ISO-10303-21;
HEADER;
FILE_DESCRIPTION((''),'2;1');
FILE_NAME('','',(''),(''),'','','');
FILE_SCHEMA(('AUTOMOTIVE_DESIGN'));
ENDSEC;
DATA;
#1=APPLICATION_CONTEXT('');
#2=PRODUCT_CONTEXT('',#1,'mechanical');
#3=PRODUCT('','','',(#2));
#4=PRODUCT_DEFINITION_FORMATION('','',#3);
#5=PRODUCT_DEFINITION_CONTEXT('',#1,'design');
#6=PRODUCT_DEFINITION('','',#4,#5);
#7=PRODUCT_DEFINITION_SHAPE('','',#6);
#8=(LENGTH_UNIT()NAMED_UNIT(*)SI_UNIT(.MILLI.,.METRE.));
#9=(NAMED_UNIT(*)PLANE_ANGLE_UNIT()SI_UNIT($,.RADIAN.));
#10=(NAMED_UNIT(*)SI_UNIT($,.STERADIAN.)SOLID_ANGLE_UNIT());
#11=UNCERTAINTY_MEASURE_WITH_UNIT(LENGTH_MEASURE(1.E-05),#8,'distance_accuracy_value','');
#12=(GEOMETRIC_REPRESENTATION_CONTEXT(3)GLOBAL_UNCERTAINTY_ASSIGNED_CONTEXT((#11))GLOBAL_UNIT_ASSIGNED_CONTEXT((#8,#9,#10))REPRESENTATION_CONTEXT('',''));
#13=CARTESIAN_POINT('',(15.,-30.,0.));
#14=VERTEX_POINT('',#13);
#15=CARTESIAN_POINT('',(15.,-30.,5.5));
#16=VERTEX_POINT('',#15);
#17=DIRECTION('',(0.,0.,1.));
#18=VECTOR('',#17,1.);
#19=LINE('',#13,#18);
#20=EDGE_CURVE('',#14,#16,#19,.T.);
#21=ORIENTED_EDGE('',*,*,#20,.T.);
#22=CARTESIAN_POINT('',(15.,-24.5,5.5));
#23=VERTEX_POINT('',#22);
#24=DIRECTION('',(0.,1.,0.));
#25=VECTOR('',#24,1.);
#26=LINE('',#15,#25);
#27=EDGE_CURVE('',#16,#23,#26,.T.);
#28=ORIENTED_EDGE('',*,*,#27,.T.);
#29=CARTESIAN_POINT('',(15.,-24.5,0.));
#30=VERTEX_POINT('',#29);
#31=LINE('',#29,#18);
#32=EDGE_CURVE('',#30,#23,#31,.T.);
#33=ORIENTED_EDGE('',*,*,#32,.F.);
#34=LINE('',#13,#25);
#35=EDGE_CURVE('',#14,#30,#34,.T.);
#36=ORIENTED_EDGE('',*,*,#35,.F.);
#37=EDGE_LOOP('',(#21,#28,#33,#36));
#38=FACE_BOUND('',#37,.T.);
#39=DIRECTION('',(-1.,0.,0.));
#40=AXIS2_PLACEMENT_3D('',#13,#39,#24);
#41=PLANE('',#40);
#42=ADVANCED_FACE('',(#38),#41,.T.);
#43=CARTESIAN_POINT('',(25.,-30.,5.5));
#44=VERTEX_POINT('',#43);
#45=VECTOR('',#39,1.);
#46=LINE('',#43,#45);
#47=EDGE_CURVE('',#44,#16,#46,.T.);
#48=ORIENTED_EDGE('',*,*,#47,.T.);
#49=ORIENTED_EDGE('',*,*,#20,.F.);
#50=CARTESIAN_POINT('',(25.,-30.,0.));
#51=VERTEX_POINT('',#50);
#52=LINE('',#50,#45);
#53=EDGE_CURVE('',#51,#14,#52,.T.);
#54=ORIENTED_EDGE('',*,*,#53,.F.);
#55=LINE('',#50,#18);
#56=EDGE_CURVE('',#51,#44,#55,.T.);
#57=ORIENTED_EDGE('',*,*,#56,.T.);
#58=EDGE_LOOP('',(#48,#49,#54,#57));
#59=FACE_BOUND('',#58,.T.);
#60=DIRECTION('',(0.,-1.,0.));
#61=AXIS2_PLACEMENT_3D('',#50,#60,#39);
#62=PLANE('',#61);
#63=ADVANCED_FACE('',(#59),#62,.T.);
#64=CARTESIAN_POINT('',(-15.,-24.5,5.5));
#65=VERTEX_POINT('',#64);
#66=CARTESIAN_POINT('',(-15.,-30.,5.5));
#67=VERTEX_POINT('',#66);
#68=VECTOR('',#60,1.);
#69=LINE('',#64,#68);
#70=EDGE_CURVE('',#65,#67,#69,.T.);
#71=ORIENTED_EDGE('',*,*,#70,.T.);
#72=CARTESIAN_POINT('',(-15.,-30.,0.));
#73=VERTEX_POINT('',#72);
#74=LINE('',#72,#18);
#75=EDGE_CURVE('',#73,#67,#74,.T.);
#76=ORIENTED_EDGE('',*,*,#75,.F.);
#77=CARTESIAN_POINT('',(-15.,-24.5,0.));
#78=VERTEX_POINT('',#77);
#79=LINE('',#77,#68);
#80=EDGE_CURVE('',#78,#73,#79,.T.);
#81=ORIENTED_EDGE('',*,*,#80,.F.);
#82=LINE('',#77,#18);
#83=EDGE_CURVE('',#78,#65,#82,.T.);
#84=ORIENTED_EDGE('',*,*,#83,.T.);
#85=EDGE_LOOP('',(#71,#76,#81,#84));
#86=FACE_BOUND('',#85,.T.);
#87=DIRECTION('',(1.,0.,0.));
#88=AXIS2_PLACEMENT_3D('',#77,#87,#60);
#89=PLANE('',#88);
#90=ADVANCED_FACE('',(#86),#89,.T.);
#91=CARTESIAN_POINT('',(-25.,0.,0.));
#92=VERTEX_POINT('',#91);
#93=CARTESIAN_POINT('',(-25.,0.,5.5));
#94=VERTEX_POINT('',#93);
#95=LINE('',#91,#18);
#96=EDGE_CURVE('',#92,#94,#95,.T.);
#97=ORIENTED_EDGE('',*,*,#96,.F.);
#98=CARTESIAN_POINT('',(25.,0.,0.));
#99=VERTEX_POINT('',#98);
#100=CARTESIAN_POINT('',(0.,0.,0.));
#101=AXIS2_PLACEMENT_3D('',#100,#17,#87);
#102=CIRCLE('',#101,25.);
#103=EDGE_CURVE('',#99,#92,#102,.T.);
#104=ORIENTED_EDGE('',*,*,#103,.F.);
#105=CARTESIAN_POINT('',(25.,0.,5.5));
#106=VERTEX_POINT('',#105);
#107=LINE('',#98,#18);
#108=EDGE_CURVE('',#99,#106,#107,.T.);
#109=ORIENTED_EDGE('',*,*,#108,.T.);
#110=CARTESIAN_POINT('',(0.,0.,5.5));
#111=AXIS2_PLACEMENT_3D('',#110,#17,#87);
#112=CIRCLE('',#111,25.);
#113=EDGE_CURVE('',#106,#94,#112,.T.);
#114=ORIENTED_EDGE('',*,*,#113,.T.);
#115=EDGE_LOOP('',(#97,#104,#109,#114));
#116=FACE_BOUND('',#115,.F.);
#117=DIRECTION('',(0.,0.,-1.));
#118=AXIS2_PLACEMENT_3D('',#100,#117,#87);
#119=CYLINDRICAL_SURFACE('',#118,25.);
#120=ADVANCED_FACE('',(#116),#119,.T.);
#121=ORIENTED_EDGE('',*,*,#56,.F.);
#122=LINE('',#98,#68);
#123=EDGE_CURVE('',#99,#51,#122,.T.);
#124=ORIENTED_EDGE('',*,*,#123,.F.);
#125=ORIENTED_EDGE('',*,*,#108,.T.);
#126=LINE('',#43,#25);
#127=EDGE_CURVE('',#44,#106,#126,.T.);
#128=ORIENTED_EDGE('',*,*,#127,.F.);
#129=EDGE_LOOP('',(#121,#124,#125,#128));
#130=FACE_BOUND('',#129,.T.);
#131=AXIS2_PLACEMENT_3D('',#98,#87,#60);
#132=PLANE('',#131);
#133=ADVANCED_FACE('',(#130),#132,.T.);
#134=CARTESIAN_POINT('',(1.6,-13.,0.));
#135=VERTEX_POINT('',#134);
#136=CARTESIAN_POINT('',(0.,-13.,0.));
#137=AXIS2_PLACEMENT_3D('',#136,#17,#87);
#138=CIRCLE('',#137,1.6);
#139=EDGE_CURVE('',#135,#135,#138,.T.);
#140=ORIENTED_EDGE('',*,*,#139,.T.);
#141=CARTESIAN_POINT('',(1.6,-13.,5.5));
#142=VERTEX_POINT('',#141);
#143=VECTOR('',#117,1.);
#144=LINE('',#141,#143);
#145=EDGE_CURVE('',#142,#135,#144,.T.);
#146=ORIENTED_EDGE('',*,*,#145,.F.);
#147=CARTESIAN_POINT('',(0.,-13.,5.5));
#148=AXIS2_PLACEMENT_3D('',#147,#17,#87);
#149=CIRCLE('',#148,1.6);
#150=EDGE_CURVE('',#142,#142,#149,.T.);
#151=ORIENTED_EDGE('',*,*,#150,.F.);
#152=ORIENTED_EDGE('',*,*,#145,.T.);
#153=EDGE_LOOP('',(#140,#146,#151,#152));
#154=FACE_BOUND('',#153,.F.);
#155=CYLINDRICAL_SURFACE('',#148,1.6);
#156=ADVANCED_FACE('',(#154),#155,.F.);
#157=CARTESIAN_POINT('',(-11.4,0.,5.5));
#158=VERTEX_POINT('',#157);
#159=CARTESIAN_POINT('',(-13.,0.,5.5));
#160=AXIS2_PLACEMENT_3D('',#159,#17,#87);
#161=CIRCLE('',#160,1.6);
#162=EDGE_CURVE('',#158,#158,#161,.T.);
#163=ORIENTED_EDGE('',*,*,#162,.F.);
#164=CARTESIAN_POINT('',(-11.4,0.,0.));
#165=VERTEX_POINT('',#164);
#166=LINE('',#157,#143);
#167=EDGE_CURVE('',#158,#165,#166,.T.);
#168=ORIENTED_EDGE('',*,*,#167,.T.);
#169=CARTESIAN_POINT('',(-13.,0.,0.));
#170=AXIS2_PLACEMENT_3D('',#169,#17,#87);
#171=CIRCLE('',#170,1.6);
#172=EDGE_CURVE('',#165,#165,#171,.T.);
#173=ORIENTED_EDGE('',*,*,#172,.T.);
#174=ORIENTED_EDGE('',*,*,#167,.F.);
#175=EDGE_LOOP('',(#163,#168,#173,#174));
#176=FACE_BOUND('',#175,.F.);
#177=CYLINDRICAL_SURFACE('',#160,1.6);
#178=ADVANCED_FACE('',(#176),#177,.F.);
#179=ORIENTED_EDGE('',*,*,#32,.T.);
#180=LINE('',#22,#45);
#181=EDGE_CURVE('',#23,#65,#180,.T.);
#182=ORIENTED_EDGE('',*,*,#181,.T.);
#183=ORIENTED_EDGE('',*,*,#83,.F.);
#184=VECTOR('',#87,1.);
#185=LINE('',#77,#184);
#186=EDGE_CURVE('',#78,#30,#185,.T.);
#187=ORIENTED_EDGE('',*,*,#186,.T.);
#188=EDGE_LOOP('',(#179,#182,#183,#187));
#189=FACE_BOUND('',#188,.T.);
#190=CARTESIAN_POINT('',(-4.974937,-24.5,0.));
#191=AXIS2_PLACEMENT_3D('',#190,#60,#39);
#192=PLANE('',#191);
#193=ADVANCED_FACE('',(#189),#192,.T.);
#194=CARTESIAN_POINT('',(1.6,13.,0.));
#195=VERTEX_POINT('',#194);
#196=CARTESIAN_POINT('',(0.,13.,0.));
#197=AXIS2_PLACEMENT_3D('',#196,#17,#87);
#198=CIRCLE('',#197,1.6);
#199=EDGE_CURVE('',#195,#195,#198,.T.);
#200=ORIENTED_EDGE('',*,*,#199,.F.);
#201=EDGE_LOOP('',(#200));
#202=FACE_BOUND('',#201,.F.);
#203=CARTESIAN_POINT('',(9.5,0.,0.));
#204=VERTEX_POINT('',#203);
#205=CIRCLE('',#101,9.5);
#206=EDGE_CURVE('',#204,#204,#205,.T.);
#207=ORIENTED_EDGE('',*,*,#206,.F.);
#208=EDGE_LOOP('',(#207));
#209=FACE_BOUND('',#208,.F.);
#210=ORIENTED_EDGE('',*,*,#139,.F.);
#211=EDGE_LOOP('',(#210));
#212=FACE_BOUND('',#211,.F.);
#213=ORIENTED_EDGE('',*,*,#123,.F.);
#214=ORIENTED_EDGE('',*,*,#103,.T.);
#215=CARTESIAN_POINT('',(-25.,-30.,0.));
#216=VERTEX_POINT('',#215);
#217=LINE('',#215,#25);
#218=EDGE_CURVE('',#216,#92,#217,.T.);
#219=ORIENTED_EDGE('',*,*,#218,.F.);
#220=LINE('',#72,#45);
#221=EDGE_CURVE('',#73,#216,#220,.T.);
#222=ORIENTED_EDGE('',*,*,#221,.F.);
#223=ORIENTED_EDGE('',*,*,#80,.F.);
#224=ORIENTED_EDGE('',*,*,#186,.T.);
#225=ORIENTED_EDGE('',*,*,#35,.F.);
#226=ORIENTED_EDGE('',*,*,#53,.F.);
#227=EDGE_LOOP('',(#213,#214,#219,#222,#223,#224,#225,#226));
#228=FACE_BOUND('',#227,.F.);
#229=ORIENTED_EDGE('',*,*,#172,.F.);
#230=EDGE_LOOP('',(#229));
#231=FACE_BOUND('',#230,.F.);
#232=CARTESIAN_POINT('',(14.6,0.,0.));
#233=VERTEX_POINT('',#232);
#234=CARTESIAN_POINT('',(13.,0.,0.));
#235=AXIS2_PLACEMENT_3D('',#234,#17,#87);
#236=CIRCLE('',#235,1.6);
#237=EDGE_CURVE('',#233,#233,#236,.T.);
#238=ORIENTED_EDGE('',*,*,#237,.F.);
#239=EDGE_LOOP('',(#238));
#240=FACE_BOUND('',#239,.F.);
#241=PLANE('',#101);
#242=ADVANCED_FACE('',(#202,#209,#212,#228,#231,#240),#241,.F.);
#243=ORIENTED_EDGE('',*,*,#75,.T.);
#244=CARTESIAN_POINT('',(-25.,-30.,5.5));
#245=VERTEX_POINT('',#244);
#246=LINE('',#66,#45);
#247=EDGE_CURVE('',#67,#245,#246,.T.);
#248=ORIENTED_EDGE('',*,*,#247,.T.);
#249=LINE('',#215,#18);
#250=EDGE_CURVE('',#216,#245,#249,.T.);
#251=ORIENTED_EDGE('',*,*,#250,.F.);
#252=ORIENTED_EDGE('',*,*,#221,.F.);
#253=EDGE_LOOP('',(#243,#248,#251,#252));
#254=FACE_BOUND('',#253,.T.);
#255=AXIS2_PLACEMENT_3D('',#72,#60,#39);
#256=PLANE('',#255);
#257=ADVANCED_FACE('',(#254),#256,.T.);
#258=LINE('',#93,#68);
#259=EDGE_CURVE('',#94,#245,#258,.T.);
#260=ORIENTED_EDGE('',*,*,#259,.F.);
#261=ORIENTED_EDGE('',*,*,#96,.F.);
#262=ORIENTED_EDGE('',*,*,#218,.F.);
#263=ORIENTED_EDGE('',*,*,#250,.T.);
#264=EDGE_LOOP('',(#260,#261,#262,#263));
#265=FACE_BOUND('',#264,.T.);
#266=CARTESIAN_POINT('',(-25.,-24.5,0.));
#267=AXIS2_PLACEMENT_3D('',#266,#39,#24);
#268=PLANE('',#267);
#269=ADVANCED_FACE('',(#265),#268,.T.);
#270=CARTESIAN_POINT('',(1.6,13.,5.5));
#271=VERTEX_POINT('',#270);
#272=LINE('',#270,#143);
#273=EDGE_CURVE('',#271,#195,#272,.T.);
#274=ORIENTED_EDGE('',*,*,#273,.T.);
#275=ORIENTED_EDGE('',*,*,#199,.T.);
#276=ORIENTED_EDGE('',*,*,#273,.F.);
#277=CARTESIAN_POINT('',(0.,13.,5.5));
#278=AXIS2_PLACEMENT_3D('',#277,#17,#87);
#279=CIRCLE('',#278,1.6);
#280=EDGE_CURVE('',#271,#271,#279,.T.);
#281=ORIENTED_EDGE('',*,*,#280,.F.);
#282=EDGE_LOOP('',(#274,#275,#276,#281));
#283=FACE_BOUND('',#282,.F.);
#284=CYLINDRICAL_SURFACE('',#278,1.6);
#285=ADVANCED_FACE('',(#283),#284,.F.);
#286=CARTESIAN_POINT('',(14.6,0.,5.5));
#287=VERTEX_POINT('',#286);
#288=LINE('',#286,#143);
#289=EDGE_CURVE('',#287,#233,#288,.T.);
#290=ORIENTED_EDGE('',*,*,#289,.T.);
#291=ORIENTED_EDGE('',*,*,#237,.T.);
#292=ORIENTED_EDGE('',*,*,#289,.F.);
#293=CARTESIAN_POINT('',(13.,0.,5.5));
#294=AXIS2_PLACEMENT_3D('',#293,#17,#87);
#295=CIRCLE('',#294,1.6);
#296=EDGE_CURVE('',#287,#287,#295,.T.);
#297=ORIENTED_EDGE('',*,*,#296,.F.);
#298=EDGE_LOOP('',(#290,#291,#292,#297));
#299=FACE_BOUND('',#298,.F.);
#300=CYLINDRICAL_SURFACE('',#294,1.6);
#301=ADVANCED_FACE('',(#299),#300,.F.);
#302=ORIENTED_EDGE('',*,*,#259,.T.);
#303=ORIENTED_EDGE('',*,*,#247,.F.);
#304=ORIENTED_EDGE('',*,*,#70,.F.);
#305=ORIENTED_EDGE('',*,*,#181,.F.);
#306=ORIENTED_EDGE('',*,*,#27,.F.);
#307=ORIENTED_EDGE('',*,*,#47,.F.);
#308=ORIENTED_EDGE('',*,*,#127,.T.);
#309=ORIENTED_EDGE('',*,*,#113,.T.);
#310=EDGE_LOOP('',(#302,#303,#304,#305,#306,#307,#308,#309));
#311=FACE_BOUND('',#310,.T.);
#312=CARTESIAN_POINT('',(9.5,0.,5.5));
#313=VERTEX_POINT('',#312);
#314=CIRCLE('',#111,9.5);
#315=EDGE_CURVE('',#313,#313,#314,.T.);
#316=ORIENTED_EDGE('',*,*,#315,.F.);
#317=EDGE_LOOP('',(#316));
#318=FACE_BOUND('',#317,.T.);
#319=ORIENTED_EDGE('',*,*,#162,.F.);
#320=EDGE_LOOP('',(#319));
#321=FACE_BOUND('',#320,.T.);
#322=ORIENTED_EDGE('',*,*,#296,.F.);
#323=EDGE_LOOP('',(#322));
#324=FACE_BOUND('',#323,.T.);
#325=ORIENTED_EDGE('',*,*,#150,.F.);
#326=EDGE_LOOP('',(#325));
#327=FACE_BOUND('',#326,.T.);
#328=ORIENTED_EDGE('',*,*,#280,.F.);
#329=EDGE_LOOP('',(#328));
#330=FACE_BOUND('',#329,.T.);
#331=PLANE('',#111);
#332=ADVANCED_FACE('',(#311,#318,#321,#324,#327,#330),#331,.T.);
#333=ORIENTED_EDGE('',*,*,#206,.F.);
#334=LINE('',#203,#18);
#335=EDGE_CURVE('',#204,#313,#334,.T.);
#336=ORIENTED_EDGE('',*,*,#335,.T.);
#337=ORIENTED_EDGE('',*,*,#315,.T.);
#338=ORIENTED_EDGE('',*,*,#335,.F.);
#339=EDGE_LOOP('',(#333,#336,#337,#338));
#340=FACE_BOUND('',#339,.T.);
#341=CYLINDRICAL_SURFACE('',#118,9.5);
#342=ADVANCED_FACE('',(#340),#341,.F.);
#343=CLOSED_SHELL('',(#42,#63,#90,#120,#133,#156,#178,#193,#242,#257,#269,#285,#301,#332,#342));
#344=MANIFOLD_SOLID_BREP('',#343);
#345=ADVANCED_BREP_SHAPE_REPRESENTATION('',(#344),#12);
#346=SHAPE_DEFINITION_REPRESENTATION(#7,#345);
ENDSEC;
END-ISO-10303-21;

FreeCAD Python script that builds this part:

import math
import FreeCAD as App
import Part
import Sketcher
from FreeCAD import Vector
Q = App.Units.Quantity

doc = App.newDocument("Part")
body = doc.addObject("PartDesign::Body", "Body")

# Sketch on XY plane
sketch1 = body.newObject("Sketcher::SketchObject", "Sketch")
sketch1.AttachmentSupport = (doc.getObject("XY_Plane"), [""])
sketch1.MapMode = "FlatFace"
sketch1.addGeometry(Part.LineSegment(Vector(-15, -24, 0), Vector(15, -24, 0)), False)
sketch1.addGeometry(Part.LineSegment(Vector(15, -24, 0), Vector(15, -30, 0)), False)
sketch1.addGeometry(Part.LineSegment(Vector(15, -30, 0), Vector(25, -30, 0)), False)
sketch1.addGeometry(Part.LineSegment(Vector(25, -30, 0), Vector(25, 0, 0)), False)
sketch1.addGeometry(Part.ArcOfCircle(Part.Circle(Vector(0, 0, 0), Vector(0, 0, 1), 25), math.radians(0), math.radians(180)), False)
sketch1.addGeometry(Part.LineSegment(Vector(-25, 0, 0), Vector(-25, -30, 0)), False)
sketch1.addGeometry(Part.LineSegment(Vector(-25, -30, 0), Vector(-15, -30, 0)), False)
sketch1.addGeometry(Part.LineSegment(Vector(-15, -30, 0), Vector(-15, -24, 0)), False)
sketch1.addGeometry(Part.Circle(Vector(0, 0, 0), Vector(0, 0, 1), 10), False)
sketch1.addConstraint(Sketcher.Constraint("Coincident", 0, 2, 1, 1))
sketch1.addConstraint(Sketcher.Constraint("Coincident", 1, 2, 2, 1))
sketch1.addConstraint(Sketcher.Constraint("Coincident", 2, 2, 3, 1))
sketch1.addConstraint(Sketcher.Constraint("Tangent", 3, 2, 4, 1))
sketch1.addConstraint(Sketcher.Constraint("Tangent", 4, 2, 5, 1))
sketch1.addConstraint(Sketcher.Constraint("Coincident", 5, 2, 6, 1))
sketch1.addConstraint(Sketcher.Constraint("Coincident", 6, 2, 7, 1))
sketch1.addConstraint(Sketcher.Constraint("Coincident", 7, 2, 0, 1))
sketch1.addConstraint(Sketcher.Constraint("Horizontal", 0))
sketch1.addConstraint(Sketcher.Constraint("Vertical", 1))
sketch1.addConstraint(Sketcher.Constraint("Horizontal", 2))
sketch1.addConstraint(Sketcher.Constraint("Vertical", 3))
sketch1.addConstraint(Sketcher.Constraint("Vertical", 5))
sketch1.addConstraint(Sketcher.Constraint("Horizontal", 6))
sketch1.addConstraint(Sketcher.Constraint("Vertical", 7))
sketch1.addConstraint(Sketcher.Constraint("Coincident", 4, 3, -1, 1))
sketch1.addConstraint(Sketcher.Constraint("Coincident", 8, 3, -1, 1))
sketch1.addConstraint(Sketcher.Constraint("Symmetric", 1, 2, 6, 2, -2))
sketch1.addConstraint(Sketcher.Constraint("Equal", 0, 3))
sketch1.addConstraint(Sketcher.Constraint("Diameter", 8, Q("19 mm")))
sketch1.addConstraint(Sketcher.Constraint("Radius", 4, Q("25 mm")))
sketch1.addConstraint(Sketcher.Constraint("DistanceX", 2, 1, 2, 2, Q("10 mm")))
sketch1.addConstraint(Sketcher.Constraint("DistanceY", 1, 2, 1, 1, Q("5.5 mm")))
pad1 = body.newObject("PartDesign::Pad", "Pad")
pad1.Profile = sketch1
pad1.Length = 5.5

# Sketch on XY plane
sketch2 = body.newObject("Sketcher::SketchObject", "Sketch001")
sketch2.AttachmentSupport = (doc.getObject("XY_Plane"), [""])
sketch2.MapMode = "FlatFace"
sketch2.AttachmentOffset = App.Placement(Vector(0, 0, 5.5), App.Rotation())
sketch2.addGeometry(Part.Circle(Vector(-13, 0, 0), Vector(0, 0, 1), 1.6), False)
sketch2.addGeometry(Part.Circle(Vector(0, 13, 0), Vector(0, 0, 1), 1.6), False)
sketch2.addGeometry(Part.Circle(Vector(13, 0, 0), Vector(0, 0, 1), 1.6), False)
sketch2.addGeometry(Part.Circle(Vector(0, -13, 0), Vector(0, 0, 1), 1.6), False)
sketch2.addConstraint(Sketcher.Constraint("Equal", 0, 1))
sketch2.addConstraint(Sketcher.Constraint("Equal", 1, 2))
sketch2.addConstraint(Sketcher.Constraint("Equal", 2, 3))
sketch2.addConstraint(Sketcher.Constraint("Symmetric", 0, 3, 2, 3, -1, 1))
sketch2.addConstraint(Sketcher.Constraint("Symmetric", 1, 3, 3, 3, -1, 1))
sketch2.addConstraint(Sketcher.Constraint("PointOnObject", 0, 3, -1))
sketch2.addConstraint(Sketcher.Constraint("PointOnObject", 1, 3, -2))
sketch2.addConstraint(Sketcher.Constraint("Diameter", 0, Q("3.2 mm")))
sketch2.addConstraint(Sketcher.Constraint("DistanceX", 0, 3, -1, 1, Q("13 mm")))
sketch2.addConstraint(Sketcher.Constraint("DistanceY", -1, 1, 1, 3, Q("13 mm")))
pocket1 = body.newObject("PartDesign::Pocket", "Pocket")
pocket1.Profile = sketch2
pocket1.Type = "ThroughAll"

doc.recompute()
